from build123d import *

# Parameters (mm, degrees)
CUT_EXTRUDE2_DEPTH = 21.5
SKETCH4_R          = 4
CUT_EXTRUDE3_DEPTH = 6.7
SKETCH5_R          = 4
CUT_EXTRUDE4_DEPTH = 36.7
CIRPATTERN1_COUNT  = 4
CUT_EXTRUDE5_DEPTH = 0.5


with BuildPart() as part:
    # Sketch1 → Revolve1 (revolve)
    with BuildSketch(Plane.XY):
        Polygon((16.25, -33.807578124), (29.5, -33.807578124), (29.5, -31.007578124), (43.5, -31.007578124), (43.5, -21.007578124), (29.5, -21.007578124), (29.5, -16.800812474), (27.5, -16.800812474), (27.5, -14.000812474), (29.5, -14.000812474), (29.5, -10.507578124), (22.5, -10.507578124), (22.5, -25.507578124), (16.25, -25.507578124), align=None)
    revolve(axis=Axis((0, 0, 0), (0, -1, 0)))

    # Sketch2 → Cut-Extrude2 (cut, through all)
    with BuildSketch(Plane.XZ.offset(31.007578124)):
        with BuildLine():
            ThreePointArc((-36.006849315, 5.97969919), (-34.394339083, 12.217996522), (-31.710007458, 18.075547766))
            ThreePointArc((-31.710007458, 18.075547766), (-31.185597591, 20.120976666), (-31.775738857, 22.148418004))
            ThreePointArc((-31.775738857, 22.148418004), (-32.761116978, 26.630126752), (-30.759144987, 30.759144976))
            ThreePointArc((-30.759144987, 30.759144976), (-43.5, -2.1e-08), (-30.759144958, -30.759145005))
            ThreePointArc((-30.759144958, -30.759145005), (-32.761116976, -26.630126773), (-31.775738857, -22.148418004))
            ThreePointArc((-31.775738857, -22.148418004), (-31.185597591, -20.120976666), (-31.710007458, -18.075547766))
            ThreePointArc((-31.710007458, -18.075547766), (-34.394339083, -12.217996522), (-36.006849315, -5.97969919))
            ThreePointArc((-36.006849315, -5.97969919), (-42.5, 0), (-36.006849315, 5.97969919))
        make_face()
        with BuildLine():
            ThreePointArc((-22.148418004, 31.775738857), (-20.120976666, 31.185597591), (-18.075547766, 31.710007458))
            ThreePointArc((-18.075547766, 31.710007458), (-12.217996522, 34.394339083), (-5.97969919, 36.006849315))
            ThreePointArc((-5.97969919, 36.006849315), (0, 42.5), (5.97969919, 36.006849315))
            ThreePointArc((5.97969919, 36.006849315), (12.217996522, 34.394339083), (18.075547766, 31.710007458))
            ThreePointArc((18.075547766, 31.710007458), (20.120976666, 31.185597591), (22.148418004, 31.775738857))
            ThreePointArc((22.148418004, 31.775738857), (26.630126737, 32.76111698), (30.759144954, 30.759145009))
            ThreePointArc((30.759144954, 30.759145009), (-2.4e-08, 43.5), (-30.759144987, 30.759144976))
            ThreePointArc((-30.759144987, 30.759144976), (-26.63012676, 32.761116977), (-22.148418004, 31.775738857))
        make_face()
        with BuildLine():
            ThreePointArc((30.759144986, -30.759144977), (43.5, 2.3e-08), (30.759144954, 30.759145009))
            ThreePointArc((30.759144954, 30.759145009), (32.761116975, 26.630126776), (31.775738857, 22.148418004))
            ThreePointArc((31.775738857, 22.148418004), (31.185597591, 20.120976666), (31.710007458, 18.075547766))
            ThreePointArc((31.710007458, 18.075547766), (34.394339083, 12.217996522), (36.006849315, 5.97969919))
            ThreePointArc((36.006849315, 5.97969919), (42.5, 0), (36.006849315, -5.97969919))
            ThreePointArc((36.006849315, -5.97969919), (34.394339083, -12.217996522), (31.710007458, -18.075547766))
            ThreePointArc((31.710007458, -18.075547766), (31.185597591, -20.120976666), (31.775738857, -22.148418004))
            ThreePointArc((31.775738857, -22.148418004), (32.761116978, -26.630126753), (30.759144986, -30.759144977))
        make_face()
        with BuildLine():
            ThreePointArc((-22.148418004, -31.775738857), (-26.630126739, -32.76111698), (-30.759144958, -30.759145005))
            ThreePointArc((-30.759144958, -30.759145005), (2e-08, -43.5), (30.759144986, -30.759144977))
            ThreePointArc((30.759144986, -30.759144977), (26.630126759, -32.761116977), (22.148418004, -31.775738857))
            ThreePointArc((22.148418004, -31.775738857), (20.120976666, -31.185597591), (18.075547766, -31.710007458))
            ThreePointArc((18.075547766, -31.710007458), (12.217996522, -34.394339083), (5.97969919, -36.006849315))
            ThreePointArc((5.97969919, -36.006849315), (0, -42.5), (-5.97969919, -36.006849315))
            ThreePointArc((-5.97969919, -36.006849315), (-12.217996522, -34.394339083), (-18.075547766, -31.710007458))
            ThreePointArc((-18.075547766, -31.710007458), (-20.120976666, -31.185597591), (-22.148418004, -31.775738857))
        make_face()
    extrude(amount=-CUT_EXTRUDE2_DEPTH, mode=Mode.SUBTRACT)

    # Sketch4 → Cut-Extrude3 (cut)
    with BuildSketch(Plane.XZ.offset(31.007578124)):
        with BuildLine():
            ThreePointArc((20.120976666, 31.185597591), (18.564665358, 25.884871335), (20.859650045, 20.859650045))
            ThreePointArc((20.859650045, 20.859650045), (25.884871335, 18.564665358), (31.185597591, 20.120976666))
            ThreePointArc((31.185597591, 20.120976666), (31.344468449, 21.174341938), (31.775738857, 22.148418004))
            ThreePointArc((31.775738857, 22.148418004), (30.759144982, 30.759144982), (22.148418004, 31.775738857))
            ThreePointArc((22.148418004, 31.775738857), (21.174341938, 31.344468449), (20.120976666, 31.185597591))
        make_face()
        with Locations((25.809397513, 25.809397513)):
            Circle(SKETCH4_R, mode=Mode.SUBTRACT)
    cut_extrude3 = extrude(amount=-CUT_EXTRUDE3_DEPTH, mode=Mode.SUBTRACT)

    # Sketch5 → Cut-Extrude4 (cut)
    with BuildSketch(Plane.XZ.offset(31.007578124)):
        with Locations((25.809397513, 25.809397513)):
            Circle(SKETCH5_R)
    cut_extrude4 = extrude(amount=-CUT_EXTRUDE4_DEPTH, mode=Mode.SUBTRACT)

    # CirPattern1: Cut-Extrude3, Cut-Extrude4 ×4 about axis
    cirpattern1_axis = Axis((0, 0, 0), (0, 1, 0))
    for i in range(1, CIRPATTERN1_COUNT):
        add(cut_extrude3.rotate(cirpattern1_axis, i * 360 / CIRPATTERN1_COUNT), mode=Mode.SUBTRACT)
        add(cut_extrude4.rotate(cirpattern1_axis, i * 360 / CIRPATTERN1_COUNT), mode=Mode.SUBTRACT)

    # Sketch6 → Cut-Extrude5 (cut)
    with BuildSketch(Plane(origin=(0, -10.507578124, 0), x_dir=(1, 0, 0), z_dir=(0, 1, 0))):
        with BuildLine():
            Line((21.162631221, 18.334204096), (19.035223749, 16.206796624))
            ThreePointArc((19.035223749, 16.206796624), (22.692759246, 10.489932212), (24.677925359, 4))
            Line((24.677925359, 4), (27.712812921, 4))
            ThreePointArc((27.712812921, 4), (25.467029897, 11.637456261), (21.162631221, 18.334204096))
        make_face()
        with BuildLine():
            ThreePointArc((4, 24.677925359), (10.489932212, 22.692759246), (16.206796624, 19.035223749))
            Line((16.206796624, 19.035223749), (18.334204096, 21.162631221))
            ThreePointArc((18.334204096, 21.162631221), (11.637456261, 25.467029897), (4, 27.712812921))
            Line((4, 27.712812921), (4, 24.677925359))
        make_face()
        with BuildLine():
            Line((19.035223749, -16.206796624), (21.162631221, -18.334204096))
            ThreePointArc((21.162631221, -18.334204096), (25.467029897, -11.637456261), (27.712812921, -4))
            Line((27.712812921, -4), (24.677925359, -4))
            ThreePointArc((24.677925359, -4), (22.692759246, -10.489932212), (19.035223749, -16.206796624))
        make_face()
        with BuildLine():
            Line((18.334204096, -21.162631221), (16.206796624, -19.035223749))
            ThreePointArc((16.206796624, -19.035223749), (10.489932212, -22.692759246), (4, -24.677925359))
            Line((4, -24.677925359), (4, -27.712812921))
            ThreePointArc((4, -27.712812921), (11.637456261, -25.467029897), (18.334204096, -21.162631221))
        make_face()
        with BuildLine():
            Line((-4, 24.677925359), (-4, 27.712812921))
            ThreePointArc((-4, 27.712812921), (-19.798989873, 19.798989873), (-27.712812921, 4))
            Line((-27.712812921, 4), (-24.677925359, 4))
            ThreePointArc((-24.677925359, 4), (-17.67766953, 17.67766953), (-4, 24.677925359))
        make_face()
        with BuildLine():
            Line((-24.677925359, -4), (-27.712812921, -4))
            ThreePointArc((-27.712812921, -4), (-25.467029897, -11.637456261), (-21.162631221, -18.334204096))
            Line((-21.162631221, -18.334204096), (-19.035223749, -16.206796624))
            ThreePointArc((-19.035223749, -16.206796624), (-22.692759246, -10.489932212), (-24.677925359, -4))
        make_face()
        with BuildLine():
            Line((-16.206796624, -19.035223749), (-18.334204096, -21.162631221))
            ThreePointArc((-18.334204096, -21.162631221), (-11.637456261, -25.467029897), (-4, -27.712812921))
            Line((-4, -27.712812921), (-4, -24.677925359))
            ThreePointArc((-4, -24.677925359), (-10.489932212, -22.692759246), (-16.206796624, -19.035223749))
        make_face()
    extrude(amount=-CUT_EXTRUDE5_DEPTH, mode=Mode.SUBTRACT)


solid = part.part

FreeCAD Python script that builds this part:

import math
import FreeCAD as App
import Part
import Sketcher
from FreeCAD import Vector


def add_polygon(sketch, points):
    """Adds a closed chain of lines whose ends are joined by coincident constraints."""
    first, n = sketch.GeometryCount, len(points)
    for a, b in zip(points, points[1:] + points[:1]):
        sketch.addGeometry(Part.LineSegment(App.Vector(*a, 0), App.Vector(*b, 0)), False)
    for i in range(n):
        sketch.addConstraint(Sketcher.Constraint("Coincident", first + i, 2, first + (i + 1) % n, 1))

doc = App.newDocument("Part")
body = doc.addObject("PartDesign::Body", "Body")

# Sketch on XY plane
sketch1 = doc.addObject("Sketcher::SketchObject", "Sketch")
body.addObject(sketch1)
sketch1.AttachmentSupport = (doc.XY_Plane, [""])
sketch1.MapMode = "FlatFace"
add_polygon(sketch1, [(16.2, -33.8), (29.5, -33.8), (29.5, -31), (43.5, -31), (43.5, -21), (29.5, -21), (29.5, -16.8), (27.5, -16.8), (27.5, -14), (29.5, -14), (29.5, -10.5), (22.5, -10.5), (22.5, -25.5), (16.2, -25.5)])  # lines 0-13
sketch1.addConstraint(Sketcher.Constraint("Horizontal", 0))
sketch1.addConstraint(Sketcher.Constraint("Vertical", 1))
sketch1.addConstraint(Sketcher.Constraint("Horizontal", 2))
sketch1.addConstraint(Sketcher.Constraint("Vertical", 3))
sketch1.addConstraint(Sketcher.Constraint("Horizontal", 4))
sketch1.addConstraint(Sketcher.Constraint("Vertical", 5))
sketch1.addConstraint(Sketcher.Constraint("Horizontal", 6))
sketch1.addConstraint(Sketcher.Constraint("Vertical", 7))
sketch1.addConstraint(Sketcher.Constraint("Horizontal", 8))
sketch1.addConstraint(Sketcher.Constraint("Vertical", 9))
sketch1.addConstraint(Sketcher.Constraint("Horizontal", 10))
sketch1.addConstraint(Sketcher.Constraint("Vertical", 11))
sketch1.addConstraint(Sketcher.Constraint("Horizontal", 12))
sketch1.addConstraint(Sketcher.Constraint("Vertical", 13))
sketch1.addConstraint(Sketcher.Constraint("Vertical", 1, 2, 4, 2))
sketch1.addConstraint(Sketcher.Constraint("Vertical", 5, 2, 8, 2))
sketch1.addConstraint(Sketcher.Constraint("Equal", 1, 7))
sketch1.addConstraint(Sketcher.Constraint("DistanceX", 2, 1, 2, 2, 14.0))
sketch1.addConstraint(Sketcher.Constraint("DistanceX", 6, 2, 6, 1, 2.0))
sketch1.addConstraint(Sketcher.Constraint("DistanceX", 10, 2, 10, 1, 7.0))
sketch1.addConstraint(Sketcher.Constraint("DistanceY", 3, 1, 3, 2, 10.0))
sketch1.addConstraint(Sketcher.Constraint("DistanceY", 11, 2, 11, 1, 15.0))
sketch1.addConstraint(Sketcher.Constraint("DistanceY", 1, 1, 1, 2, 2.8))
sketch1.addConstraint(Sketcher.Constraint("DistanceY", 13, 2, 13, 1, 8.3))
sketch1.addConstraint(Sketcher.Constraint("DistanceX", 0, 1, 0, 2, 13.25))
sketch1.addConstraint(Sketcher.Constraint("DistanceX", -1, 1, 0, 2, 29.5))
sketch1.addConstraint(Sketcher.Constraint("DistanceY", 5, 1, 5, 2, 4.206766))
sketch1.addConstraint(Sketcher.Constraint("DistanceY", 0, 2, -1, 1, 33.807578))
revolution = doc.addObject("PartDesign::Revolution", "Revolution")
body.addObject(revolution)
revolution.Profile = sketch1
revolution.ReferenceAxis = (sketch1, ["V_Axis"])
revolution.Angle = 360

# Sketch on XZ plane
sketch2 = doc.addObject("Sketcher::SketchObject", "Sketch001")
body.addObject(sketch2)
sketch2.AttachmentSupport = (doc.XZ_Plane, [""])
sketch2.MapMode = "FlatFace"
sketch2.AttachmentOffset = App.Placement(Vector(0, 0, 31.007578), App.Rotation())
sketch2.addGeometry(Part.ArcOfCircle(Part.Circle(Vector(0, 0, 0), Vector(0, 0, 1), 36.5), math.radians(150), math.radians(171)), False)
sketch2.addGeometry(Part.ArcOfCircle(Part.Circle(Vector(-35.2, 20.1, 0), Vector(0, 0, 1), 4), math.radians(-30), math.radians(32)), False)
sketch2.addGeometry(Part.ArcOfCircle(Part.Circle(Vector(-25.8, 25.8, 0), Vector(0, 0, 1), 7), math.radians(135), math.radians(212)), False)
sketch2.addGeometry(Part.ArcOfCircle(Part.Circle(Vector(0, 0, 0), Vector(0, 0, 1), 43.5), math.radians(135), math.radians(225)), False)
sketch2.addGeometry(Part.ArcOfCircle(Part.Circle(Vector(-25.8, -25.8, 0), Vector(0, 0, 1), 7), math.radians(148), math.radians(225)), False)
sketch2.addGeometry(Part.ArcOfCircle(Part.Circle(Vector(-35.2, -20.1, 0), Vector(0, 0, 1), 4), math.radians(-32), math.radians(30)), False)
sketch2.addGeometry(Part.ArcOfCircle(Part.Circle(Vector(0, 0, 0), Vector(0, 0, 1), 36.5), math.radians(-171), math.radians(-150)), False)
sketch2.addGeometry(Part.ArcOfCircle(Part.Circle(Vector(-36.5, 0, 0), Vector(0, 0, 1), 6), math.radians(85), math.radians(275)), False)
sketch2.addGeometry(Part.ArcOfCircle(Part.Circle(Vector(-20.1, 35.2, 0), Vector(0, 0, 1), 4), math.radians(-122), math.radians(-60)), False)
sketch2.addGeometry(Part.ArcOfCircle(Part.Circle(Vector(0, 0, 0), Vector(0, 0, 1), 36.5), math.radians(99), math.radians(120)), False)
sketch2.addGeometry(Part.ArcOfCircle(Part.Circle(Vector(0, 36.5, 0), Vector(0, 0, 1), 6), math.radians(-5), math.radians(185)), False)
sketch2.addGeometry(Part.ArcOfCircle(Part.Circle(Vector(0, 0, 0), Vector(0, 0, 1), 36.5), math.radians(60), math.radians(81)), False)
sketch2.addGeometry(Part.ArcOfCircle(Part.Circle(Vector(20.1, 35.2, 0), Vector(0, 0, 1), 4), math.radians(-120), math.radians(-58)), False)
sketch2.addGeometry(Part.ArcOfCircle(Part.Circle(Vector(25.8, 25.8, 0), Vector(0, 0, 1), 7), math.radians(45), math.radians(122)), False)
sketch2.addGeometry(Part.ArcOfCircle(Part.Circle(Vector(0, 0, 0), Vector(0, 0, 1), 43.5), math.radians(45), math.radians(135)), False)
sketch2.addGeometry(Part.ArcOfCircle(Part.Circle(Vector(-25.8, 25.8, 0), Vector(0, 0, 1), 7), math.radians(58), math.radians(135)), False)
sketch2.addGeometry(Part.ArcOfCircle(Part.Circle(Vector(0, 0, 0), Vector(0, 0, 1), 43.5), math.radians(-45), math.radians(45)), False)
sketch2.addGeometry(Part.ArcOfCircle(Part.Circle(Vector(25.8, 25.8, 0), Vector(0, 0, 1), 7), math.radians(-32), math.radians(45)), False)
sketch2.addGeometry(Part.ArcOfCircle(Part.Circle(Vector(35.2, 20.1, 0), Vector(0, 0, 1), 4), math.radians(148), math.radians(210)), False)
sketch2.addGeometry(Part.ArcOfCircle(Part.Circle(Vector(0, 0, 0), Vector(0, 0, 1), 36.5), math.radians(9), math.radians(30)), False)
sketch2.addGeometry(Part.ArcOfCircle(Part.Circle(Vector(36.5, 0, 0), Vector(0, 0, 1), 6), math.radians(-95), math.radians(95)), False)
sketch2.addGeometry(Part.ArcOfCircle(Part.Circle(Vector(0, 0, 0), Vector(0, 0, 1), 36.5), math.radians(-30), math.radians(-9)), False)
sketch2.addGeometry(Part.ArcOfCircle(Part.Circle(Vector(35.2, -20.1, 0), Vector(0, 0, 1), 4), math.radians(150), math.radians(212)), False)
sketch2.addGeometry(Part.ArcOfCircle(Part.Circle(Vector(25.8, -25.8, 0), Vector(0, 0, 1), 7), math.radians(-45), math.radians(32)), False)
sketch2.addGeometry(Part.ArcOfCircle(Part.Circle(Vector(-25.8, -25.8, 0), Vector(0, 0, 1), 7), math.radians(-135), math.radians(-58)), False)
sketch2.addGeometry(Part.ArcOfCircle(Part.Circle(Vector(0, 0, 0), Vector(0, 0, 1), 43.5), math.radians(-135), math.radians(-45)), False)
sketch2.addGeometry(Part.ArcOfCircle(Part.Circle(Vector(25.8, -25.8, 0), Vector(0, 0, 1), 7), math.radians(-122), math.radians(-45)), False)
sketch2.addGeometry(Part.ArcOfCircle(Part.Circle(Vector(20.1, -35.2, 0), Vector(0, 0, 1), 4), math.radians(58), math.radians(120)), False)
sketch2.addGeometry(Part.ArcOfCircle(Part.Circle(Vector(0, 0, 0), Vector(0, 0, 1), 36.5), math.radians(-81), math.radians(-60)), False)
sketch2.addGeometry(Part.ArcOfCircle(Part.Circle(Vector(0, -36.5, 0), Vector(0, 0, 1), 6), math.radians(175), math.radians(365)), False)
sketch2.addGeometry(Part.ArcOfCircle(Part.Circle(Vector(0, 0, 0), Vector(0, 0, 1), 36.5), math.radians(-120), math.radians(-99)), False)
sketch2.addGeometry(Part.ArcOfCircle(Part.Circle(Vector(-20.1, -35.2, 0), Vector(0, 0, 1), 4), math.radians(60), math.radians(122)), False)
sketch2.addConstraint(Sketcher.Constraint("Tangent", 0, 1, 1, 1))
sketch2.addConstraint(Sketcher.Constraint("Tangent", 1, 2, 2, 2))
sketch2.addConstraint(Sketcher.Constraint("Tangent", 2, 1, 3, 1))
sketch2.addConstraint(Sketcher.Constraint("Tangent", 3, 2, 4, 2))
sketch2.addConstraint(Sketcher.Constraint("Tangent", 4, 1, 5, 1))
sketch2.addConstraint(Sketcher.Constraint("Tangent", 5, 2, 6, 2))
sketch2.addConstraint(Sketcher.Constraint("Coincident", 6, 1, 7, 2))
sketch2.addConstraint(Sketcher.Constraint("Coincident", 7, 1, 0, 2))
sketch2.addConstraint(Sketcher.Constraint("Tangent", 8, 2, 9, 2))
sketch2.addConstraint(Sketcher.Constraint("Coincident", 9, 1, 10, 2))
sketch2.addConstraint(Sketcher.Constraint("Coincident", 10, 1, 11, 2))
sketch2.addConstraint(Sketcher.Constraint("Tangent", 11, 1, 12, 1))
sketch2.addConstraint(Sketcher.Constraint("Tangent", 12, 2, 13, 2))
sketch2.addConstraint(Sketcher.Constraint("Tangent", 13, 1, 14, 1))
sketch2.addConstraint(Sketcher.Constraint("Tangent", 14, 2, 15, 2))
sketch2.addConstraint(Sketcher.Constraint("Tangent", 15, 1, 8, 1))
sketch2.addConstraint(Sketcher.Constraint("Tangent", 16, 2, 17, 2))
sketch2.addConstraint(Sketcher.Constraint("Tangent", 17, 1, 18, 1))
sketch2.addConstraint(Sketcher.Constraint("Tangent", 18, 2, 19, 2))
sketch2.addConstraint(Sketcher.Constraint("Coincident", 19, 1, 20, 2))
sketch2.addConstraint(Sketcher.Constraint("Coincident", 20, 1, 21, 2))
sketch2.addConstraint(Sketcher.Constraint("Tangent", 21, 1, 22, 1))
sketch2.addConstraint(Sketcher.Constraint("Tangent", 22, 2, 23, 2))
sketch2.addConstraint(Sketcher.Constraint("Tangent", 23, 1, 16, 1))
sketch2.addConstraint(Sketcher.Constraint("Tangent", 24, 1, 25, 1))
sketch2.addConstraint(Sketcher.Constraint("Tangent", 25, 2, 26, 2))
sketch2.addConstraint(Sketcher.Constraint("Tangent", 26, 1, 27, 1))
sketch2.addConstraint(Sketcher.Constraint("Tangent", 27, 2, 28, 2))
sketch2.addConstraint(Sketcher.Constraint("Coincident", 28, 1, 29, 2))
sketch2.addConstraint(Sketcher.Constraint("Coincident", 29, 1, 30, 2))
sketch2.addConstraint(Sketcher.Constraint("Tangent", 30, 1, 31, 1))
sketch2.addConstraint(Sketcher.Constraint("Tangent", 31, 2, 24, 2))
sketch2.addConstraint(Sketcher.Constraint("Coincident", 0, 3, -1, 1))
sketch2.addConstraint(Sketcher.Constraint("Coincident", 3, 3, -1, 1))
sketch2.addConstraint(Sketcher.Constraint("Coincident", 6, 3, -1, 1))
sketch2.addConstraint(Sketcher.Constraint("Coincident", 9, 3, -1, 1))
sketch2.addConstraint(Sketcher.Constraint("Coincident", 11, 3, -1, 1))
sketch2.addConstraint(Sketcher.Constraint("Coincident", 14, 3, -1, 1))
sketch2.addConstraint(Sketcher.Constraint("Coincident", 16, 3, -1, 1))
sketch2.addConstraint(Sketcher.Constraint("Coincident", 19, 3, -1, 1))
sketch2.addConstraint(Sketcher.Constraint("Coincident", 21, 3, -1, 1))
sketch2.addConstraint(Sketcher.Constraint("Coincident", 25, 3, -1, 1))
sketch2.addConstraint(Sketcher.Constraint("Coincident", 28, 3, -1, 1))
sketch2.addConstraint(Sketcher.Constraint("Coincident", 30, 3, -1, 1))
sketch2.addConstraint(Sketcher.Constraint("Coincident", 15, 3, 2, 3))
sketch2.addConstraint(Sketcher.Constraint("Coincident", 17, 3, 13, 3))
sketch2.addConstraint(Sketcher.Constraint("Coincident", 24, 3, 4, 3))
sketch2.addConstraint(Sketcher.Constraint("Coincident", 26, 3, 23, 3))
sketch2.addConstraint(Sketcher.Constraint("Equal", 2, 4))
sketch2.addConstraint(Sketcher.Constraint("Equal", 1, 5))
sketch2.addConstraint(Sketcher.Constraint("Equal", 0, 6))
sketch2.addConstraint(Sketcher.Constraint("Equal", 5, 8))
sketch2.addConstraint(Sketcher.Constraint("Equal", 6, 9))
sketch2.addConstraint(Sketcher.Constraint("Equal", 7, 10))
sketch2.addConstraint(Sketcher.Constraint("Equal", 9, 11))
sketch2.addConstraint(Sketcher.Constraint("Equal", 8, 12))
sketch2.addConstraint(Sketcher.Constraint("Equal", 4, 13))
sketch2.addConstraint(Sketcher.Constraint("Equal", 3, 14))
sketch2.addConstraint(Sketcher.Constraint("Equal", 14, 16))
sketch2.addConstraint(Sketcher.Constraint("Equal", 12, 18))
sketch2.addConstraint(Sketcher.Constraint("Equal", 11, 19))
sketch2.addConstraint(Sketcher.Constraint("Equal", 10, 20))
sketch2.addConstraint(Sketcher.Constraint("Equal", 19, 21))
sketch2.addConstraint(Sketcher.Constraint("Equal", 18, 22))
sketch2.addConstraint(Sketcher.Constraint("Equal", 17, 23))
sketch2.addConstraint(Sketcher.Constraint("Equal", 23, 24))
sketch2.addConstraint(Sketcher.Constraint("Equal", 22, 27))
sketch2.addConstraint(Sketcher.Constraint("Equal", 21, 28))
sketch2.addConstraint(Sketcher.Constraint("Equal", 20, 29))
sketch2.addConstraint(Sketcher.Constraint("Equal", 28, 30))
sketch2.addConstraint(Sketcher.Constraint("Equal", 27, 31))
sketch2.addConstraint(Sketcher.Constraint("Symmetric", 7, 3, 20, 3, -1, 1))
sketch2.addConstraint(Sketcher.Constraint("Symmetric", 10, 3, 29, 3, -1, 1))
sketch2.addConstraint(Sketcher.Constraint("PointOnObject", 7, 3, -1))
sketch2.addConstraint(Sketcher.Constraint("PointOnObject", 10, 3, -2))
sketch2.addConstraint(Sketcher.Constraint("Horizontal", 8, 3, 12, 3))
sketch2.addConstraint(Sketcher.Constraint("Horizontal", 5, 3, 22, 3))
sketch2.addConstraint(Sketcher.Constraint("Vertical", 2, 3, 4, 3))
sketch2.addConstraint(Sketcher.Constraint("Radius", 1, 4.0))
sketch2.addConstraint(Sketcher.Constraint("Radius", 2, 7.0))
sketch2.addConstraint(Sketcher.Constraint("Radius", 7, 6.0))
sketch2.addConstraint(Sketcher.Constraint("Radius", 0, 36.5))
sketch2.addConstraint(Sketcher.Constraint("Radius", 3, 43.5))
sketch2.addConstraint(Sketcher.Constraint("DistanceX", 7, 3, -1, 1, 36.5))
sketch2.addConstraint(Sketcher.Constraint("DistanceY", -1, 1, 10, 3, 36.5))
sketch2.addConstraint(Sketcher.Constraint("DistanceY", -1, 1, 1, 3, 20.05643))
pocket1 = doc.addObject("PartDesign::Pocket", "Pocket")
body.addObject(pocket1)
pocket1.Profile = sketch2
pocket1.Type = "ThroughAll"

# Sketch on XZ plane
sketch3 = doc.addObject("Sketcher::SketchObject", "Sketch002")
body.addObject(sketch3)
sketch3.AttachmentSupport = (doc.XZ_Plane, [""])
sketch3.MapMode = "FlatFace"
sketch3.AttachmentOffset = App.Placement(Vector(0, 0, 31.007578), App.Rotation())
sketch3.addGeometry(Part.ArcOfCircle(Part.Circle(Vector(26.4, 26.4, 0), Vector(0, 0, 1), 7.9), math.radians(143), math.radians(225)), False)
sketch3.addGeometry(Part.ArcOfCircle(Part.Circle(Vector(26.4, 26.4, 0), Vector(0, 0, 1), 7.9), math.radians(-135), math.radians(-53)), False)
sketch3.addGeometry(Part.ArcOfCircle(Part.Circle(Vector(35.2, 20.1, 0), Vector(0, 0, 1), 4), math.radians(148), math.radians(179)), False)
sketch3.addGeometry(Part.ArcOfCircle(Part.Circle(Vector(25.8, 25.8, 0), Vector(0, 0, 1), 7), math.radians(-32), math.radians(122)), False)
sketch3.addGeometry(Part.ArcOfCircle(Part.Circle(Vector(20.1, 35.2, 0), Vector(0, 0, 1), 4), math.radians(-89), math.radians(-58)), False)
sketch3.addGeometry(Part.Circle(Vector(25.8, 25.8, 0), Vector(0, 0, 1), 4), False)
sketch3.addConstraint(Sketcher.Constraint("Tangent", 0, 2, 1, 1))
sketch3.addConstraint(Sketcher.Constraint("Coincident", 1, 2, 2, 2))
sketch3.addConstraint(Sketcher.Constraint("Tangent", 2, 1, 3, 1))
sketch3.addConstraint(Sketcher.Constraint("Tangent", 3, 2, 4, 2))
sketch3.addConstraint(Sketcher.Constraint("Coincident", 4, 1, 0, 1))
sketch3.addConstraint(Sketcher.Constraint("Coincident", 5, 3, 3, 3))
sketch3.addConstraint(Sketcher.Constraint("Equal", 0, 1))
sketch3.addConstraint(Sketcher.Constraint("Equal", 2, 4))
sketch3.addConstraint(Sketcher.Constraint("Equal", 4, 5))
sketch3.addConstraint(Sketcher.Constraint("Diameter", 5, 8.0))
sketch3.addConstraint(Sketcher.Constraint("Radius", 3, 7.0))
sketch3.addConstraint(Sketcher.Constraint("Radius", 0, 7.904355))
sketch3.addConstraint(Sketcher.Constraint("DistanceX", 5, 3, 1, 2, 5.3762))
sketch3.addConstraint(Sketcher.Constraint("DistanceY", 5, 3, 4, 1, 5.3762))
sketch3.addConstraint(Sketcher.Constraint("DistanceY", -1, 1, 2, 3, 20.05643))
sketch3.addConstraint(Sketcher.Constraint("DistanceX", -1, 1, 4, 3, 20.05643))
sketch3.addConstraint(Sketcher.Constraint("DistanceX", -1, 1, 0, 2, 20.85965))
sketch3.addConstraint(Sketcher.Constraint("DistanceY", -1, 1, 0, 2, 20.85965))
sketch3.addConstraint(Sketcher.Constraint("DistanceX", -1, 1, 2, 1, 31.775739))
pocket2 = doc.addObject("PartDesign::Pocket", "Pocket001")
body.addObject(pocket2)
pocket2.Profile = sketch3
pocket2.Length = 6.7

# Sketch on XZ plane
sketch4 = doc.addObject("Sketcher::SketchObject", "Sketch003")
body.addObject(sketch4)
sketch4.AttachmentSupport = (doc.XZ_Plane, [""])
sketch4.MapMode = "FlatFace"
sketch4.AttachmentOffset = App.Placement(Vector(0, 0, 31.007578), App.Rotation())
sketch4.addGeometry(Part.Circle(Vector(25.8, 25.8, 0), Vector(0, 0, 1), 4), False)
sketch4.addConstraint(Sketcher.Constraint("Diameter", 0, 8.0))
sketch4.addConstraint(Sketcher.Constraint("DistanceX", -1, 1, 0, 3, 25.809398))
sketch4.addConstraint(Sketcher.Constraint("DistanceY", -1, 1, 0, 3, 25.809398))
pocket3 = doc.addObject("PartDesign::Pocket", "Pocket002")
body.addObject(pocket3)
pocket3.Profile = sketch4
pocket3.Length = 36.7
doc.recompute()

polarpattern = doc.addObject("PartDesign::PolarPattern", "PolarPattern")
body.addObject(polarpattern)
polarpattern.Originals = [pocket2, pocket3]
polarpattern.Axis = (doc.Y_Axis, [""])
polarpattern.Angle = 360
polarpattern.Occurrences = 4
body.Tip = polarpattern

# Sketch on XZ plane
sketch5 = doc.addObject("Sketcher::SketchObject", "Sketch004")
body.addObject(sketch5)
sketch5.AttachmentSupport = (doc.XZ_Plane, [""])
sketch5.MapMode = "FlatFace"
sketch5.AttachmentOffset = App.Placement(Vector(0, 0, 10.507578), App.Rotation())
sketch5.addGeometry(Part.LineSegment(Vector(21.2, -18.3, 0), Vector(19, -16.2, 0)), False)
sketch5.addGeometry(Part.ArcOfCircle(Part.Circle(Vector(0, 0, 0), Vector(0, 0, 1), 25), math.radians(-40), math.radians(-9)), False)
sketch5.addGeometry(Part.LineSegment(Vector(24.7, -4, 0), Vector(27.7, -4, 0)), False)
sketch5.addGeometry(Part.ArcOfCircle(Part.Circle(Vector(0, 0, 0), Vector(0, 0, 1), 28), math.radians(-41), math.radians(-8)), False)
sketch5.addGeometry(Part.ArcOfCircle(Part.Circle(Vector(0, 0, 0), Vector(0, 0, 1), 25), math.radians(-81), math.radians(-50)), False)
sketch5.addGeometry(Part.LineSegment(Vector(16.2, -19, 0), Vector(18.3, -21.2, 0)), False)
sketch5.addGeometry(Part.ArcOfCircle(Part.Circle(Vector(0, 0, 0), Vector(0, 0, 1), 28), math.radians(-82), math.radians(-49)), False)
sketch5.addGeometry(Part.LineSegment(Vector(4, -27.7, 0), Vector(4, -24.7, 0)), False)
sketch5.addGeometry(Part.LineSegment(Vector(19, 16.2, 0), Vector(21.2, 18.3, 0)), False)
sketch5.addGeometry(Part.ArcOfCircle(Part.Circle(Vector(0, 0, 0), Vector(0, 0, 1), 28), math.radians(8), math.radians(41)), False)
sketch5.addGeometry(Part.LineSegment(Vector(27.7, 4, 0), Vector(24.7, 4, 0)), False)
sketch5.addGeometry(Part.ArcOfCircle(Part.Circle(Vector(0, 0, 0), Vector(0, 0, 1), 25), math.radians(9), math.radians(40)), False)
sketch5.addGeometry(Part.LineSegment(Vector(18.3, 21.2, 0), Vector(16.2, 19, 0)), False)
sketch5.addGeometry(Part.ArcOfCircle(Part.Circle(Vector(0, 0, 0), Vector(0, 0, 1), 25), math.radians(50), math.radians(81)), False)
sketch5.addGeometry(Part.LineSegment(Vector(4, 24.7, 0), Vector(4, 27.7, 0)), False)
sketch5.addGeometry(Part.ArcOfCircle(Part.Circle(Vector(0, 0, 0), Vector(0, 0, 1), 28), math.radians(49), math.radians(82)), False)
sketch5.addGeometry(Part.LineSegment(Vector(-4, -24.7, 0), Vector(-4, -27.7, 0)), False)
sketch5.addGeometry(Part.ArcOfCircle(Part.Circle(Vector(0, 0, 0), Vector(0, 0, 1), 28), math.radians(-172), math.radians(-98)), False)
sketch5.addGeometry(Part.LineSegment(Vector(-27.7, -4, 0), Vector(-24.7, -4, 0)), False)
sketch5.addGeometry(Part.ArcOfCircle(Part.Circle(Vector(0, 0, 0), Vector(0, 0, 1), 25), math.radians(-171), math.radians(-99)), False)
sketch5.addGeometry(Part.LineSegment(Vector(-24.7, 4, 0), Vector(-27.7, 4, 0)), False)
sketch5.addGeometry(Part.ArcOfCircle(Part.Circle(Vector(0, 0, 0), Vector(0, 0, 1), 28), math.radians(139), math.radians(172)), False)
sketch5.addGeometry(Part.LineSegment(Vector(-21.2, 18.3, 0), Vector(-19, 16.2, 0)), False)
sketch5.addGeometry(Part.ArcOfCircle(Part.Circle(Vector(0, 0, 0), Vector(0, 0, 1), 25), math.radians(140), math.radians(171)), False)
sketch5.addGeometry(Part.LineSegment(Vector(-16.2, 19, 0), Vector(-18.3, 21.2, 0)), False)
sketch5.addGeometry(Part.ArcOfCircle(Part.Circle(Vector(0, 0, 0), Vector(0, 0, 1), 28), math.radians(98), math.radians(131)), False)
sketch5.addGeometry(Part.LineSegment(Vector(-4, 27.7, 0), Vector(-4, 24.7, 0)), False)
sketch5.addGeometry(Part.ArcOfCircle(Part.Circle(Vector(0, 0, 0), Vector(0, 0, 1), 25), math.radians(99), math.radians(130)), False)
sketch5.addConstraint(Sketcher.Constraint("Coincident", 0, 2, 1, 1))
sketch5.addConstraint(Sketcher.Constraint("Coincident", 1, 2, 2, 1))
sketch5.addConstraint(Sketcher.Constraint("Coincident", 2, 2, 3, 2))
sketch5.addConstraint(Sketcher.Constraint("Coincident", 3, 1, 0, 1))
sketch5.addConstraint(Sketcher.Constraint("Coincident", 4, 2, 5, 1))
sketch5.addConstraint(Sketcher.Constraint("Coincident", 5, 2, 6, 2))
sketch5.addConstraint(Sketcher.Constraint("Coincident", 6, 1, 7, 1))
sketch5.addConstraint(Sketcher.Constraint("Coincident", 7, 2, 4, 1))
sketch5.addConstraint(Sketcher.Constraint("Coincident", 8, 2, 9, 2))
sketch5.addConstraint(Sketcher.Constraint("Coincident", 9, 1, 10, 1))
sketch5.addConstraint(Sketcher.Constraint("Coincident", 10, 2, 11, 1))
sketch5.addConstraint(Sketcher.Constraint("Coincident", 11, 2, 8, 1))
sketch5.addConstraint(Sketcher.Constraint("Coincident", 12, 2, 13, 1))
sketch5.addConstraint(Sketcher.Constraint("Coincident", 13, 2, 14, 1))
sketch5.addConstraint(Sketcher.Constraint("Coincident", 14, 2, 15, 2))
sketch5.addConstraint(Sketcher.Constraint("Coincident", 15, 1, 12, 1))
sketch5.addConstraint(Sketcher.Constraint("Coincident", 16, 2, 17, 2))
sketch5.addConstraint(Sketcher.Constraint("Coincident", 17, 1, 18, 1))
sketch5.addConstraint(Sketcher.Constraint("Coincident", 18, 2, 19, 1))
sketch5.addConstraint(Sketcher.Constraint("Coincident", 19, 2, 16, 1))
sketch5.addConstraint(Sketcher.Constraint("Coincident", 20, 2, 21, 2))
sketch5.addConstraint(Sketcher.Constraint("Coincident", 21, 1, 22, 1))
sketch5.addConstraint(Sketcher.Constraint("Coincident", 22, 2, 23, 1))
sketch5.addConstraint(Sketcher.Constraint("Coincident", 23, 2, 20, 1))
sketch5.addConstraint(Sketcher.Constraint("Coincident", 24, 2, 25, 2))
sketch5.addConstraint(Sketcher.Constraint("Coincident", 25, 1, 26, 1))
sketch5.addConstraint(Sketcher.Constraint("Coincident", 26, 2, 27, 1))
sketch5.addConstraint(Sketcher.Constraint("Coincident", 27, 2, 24, 1))
sketch5.addConstraint(Sketcher.Constraint("Horizontal", 2))
sketch5.addConstraint(Sketcher.Constraint("Vertical", 7))
sketch5.addConstraint(Sketcher.Constraint("Horizontal", 10))
sketch5.addConstraint(Sketcher.Constraint("Vertical", 14))
sketch5.addConstraint(Sketcher.Constraint("Vertical", 16))
sketch5.addConstraint(Sketcher.Constraint("Horizontal", 18))
sketch5.addConstraint(Sketcher.Constraint("Horizontal", 20))
sketch5.addConstraint(Sketcher.Constraint("Vertical", 26))
sketch5.addConstraint(Sketcher.Constraint("Coincident", 1, 3, -1, 1))
sketch5.addConstraint(Sketcher.Constraint("Coincident", 3, 3, -1, 1))
sketch5.addConstraint(Sketcher.Constraint("Coincident", 4, 3, -1, 1))
sketch5.addConstraint(Sketcher.Constraint("Coincident", 6, 3, -1, 1))
sketch5.addConstraint(Sketcher.Constraint("Coincident", 9, 3, -1, 1))
sketch5.addConstraint(Sketcher.Constraint("Coincident", 11, 3, -1, 1))
sketch5.addConstraint(Sketcher.Constraint("Coincident", 13, 3, -1, 1))
sketch5.addConstraint(Sketcher.Constraint("Coincident", 15, 3, -1, 1))
sketch5.addConstraint(Sketcher.Constraint("Coincident", 17, 3, -1, 1))
sketch5.addConstraint(Sketcher.Constraint("Coincident", 19, 3, -1, 1))
sketch5.addConstraint(Sketcher.Constraint("Coincident", 21, 3, -1, 1))
sketch5.addConstraint(Sketcher.Constraint("Coincident", 23, 3, -1, 1))
sketch5.addConstraint(Sketcher.Constraint("Coincident", 25, 3, -1, 1))
sketch5.addConstraint(Sketcher.Constraint("Coincident", 27, 3, -1, 1))
sketch5.addConstraint(Sketcher.Constraint("Equal", 1, 4))
sketch5.addConstraint(Sketcher.Constraint("Equal", 3, 6))
sketch5.addConstraint(Sketcher.Constraint("Equal", 6, 9))
sketch5.addConstraint(Sketcher.Constraint("Equal", 4, 11))
sketch5.addConstraint(Sketcher.Constraint("Equal", 11, 13))
sketch5.addConstraint(Sketcher.Constraint("Equal", 9, 15))
sketch5.addConstraint(Sketcher.Constraint("Equal", 15, 17))
sketch5.addConstraint(Sketcher.Constraint("Equal", 13, 19))
sketch5.addConstraint(Sketcher.Constraint("Equal", 17, 21))
sketch5.addConstraint(Sketcher.Constraint("Equal", 19, 23))
sketch5.addConstraint(Sketcher.Constraint("Equal", 21, 25))
sketch5.addConstraint(Sketcher.Constraint("Equal", 23, 27))
sketch5.addConstraint(Sketcher.Constraint("Parallel", 0, 5))
sketch5.addConstraint(Sketcher.Constraint("Perpendicular", 5, 8))
sketch5.addConstraint(Sketcher.Constraint("Parallel", 8, 12))
sketch5.addConstraint(Sketcher.Constraint("Perpendicular", 12, 22))
sketch5.addConstraint(Sketcher.Constraint("Parallel", 22, 24))
sketch5.addConstraint(Sketcher.Constraint("Horizontal", 6, 1, 16, 2))
sketch5.addConstraint(Sketcher.Constraint("Horizontal", 2, 2, 17, 1))
sketch5.addConstraint(Sketcher.Constraint("Horizontal", 10, 2, 20, 2))
sketch5.addConstraint(Sketcher.Constraint("Horizontal", 8, 2, 21, 1))
sketch5.addConstraint(Sketcher.Constraint("Horizontal", 11, 2, 22, 2))
sketch5.addConstraint(Sketcher.Constraint("Horizontal", 15, 1, 24, 2))
sketch5.addConstraint(Sketcher.Constraint("Horizontal", 14, 2, 25, 1))
sketch5.addConstraint(Sketcher.Constraint("Vertical", 3, 1, 8, 2))
sketch5.addConstraint(Sketcher.Constraint("Vertical", 2, 2, 9, 1))
sketch5.addConstraint(Sketcher.Constraint("Vertical", 4, 2, 12, 2))
sketch5.addConstraint(Sketcher.Constraint("Vertical", 7, 2, 13, 2))
sketch5.addConstraint(Sketcher.Constraint("Equal", 20, 7))
sketch5.addConstraint(Sketcher.Constraint("Equal", 0, 5))
sketch5.addConstraint(Sketcher.Constraint("Radius", 1, 25.0))
sketch5.addConstraint(Sketcher.Constraint("Radius", 3, 28.0))
sketch5.addConstraint(Sketcher.Constraint("DistanceY", 1, 2, -1, 1, 4.0))
sketch5.addConstraint(Sketcher.Constraint("DistanceX", 0, 2, 1, 2, 5.642702))
pocket4 = doc.addObject("PartDesign::Pocket", "Pocket003")
body.addObject(pocket4)
pocket4.Profile = sketch5
pocket4.Length = 0.5
pocket4.Reversed = True

doc.recompute()
